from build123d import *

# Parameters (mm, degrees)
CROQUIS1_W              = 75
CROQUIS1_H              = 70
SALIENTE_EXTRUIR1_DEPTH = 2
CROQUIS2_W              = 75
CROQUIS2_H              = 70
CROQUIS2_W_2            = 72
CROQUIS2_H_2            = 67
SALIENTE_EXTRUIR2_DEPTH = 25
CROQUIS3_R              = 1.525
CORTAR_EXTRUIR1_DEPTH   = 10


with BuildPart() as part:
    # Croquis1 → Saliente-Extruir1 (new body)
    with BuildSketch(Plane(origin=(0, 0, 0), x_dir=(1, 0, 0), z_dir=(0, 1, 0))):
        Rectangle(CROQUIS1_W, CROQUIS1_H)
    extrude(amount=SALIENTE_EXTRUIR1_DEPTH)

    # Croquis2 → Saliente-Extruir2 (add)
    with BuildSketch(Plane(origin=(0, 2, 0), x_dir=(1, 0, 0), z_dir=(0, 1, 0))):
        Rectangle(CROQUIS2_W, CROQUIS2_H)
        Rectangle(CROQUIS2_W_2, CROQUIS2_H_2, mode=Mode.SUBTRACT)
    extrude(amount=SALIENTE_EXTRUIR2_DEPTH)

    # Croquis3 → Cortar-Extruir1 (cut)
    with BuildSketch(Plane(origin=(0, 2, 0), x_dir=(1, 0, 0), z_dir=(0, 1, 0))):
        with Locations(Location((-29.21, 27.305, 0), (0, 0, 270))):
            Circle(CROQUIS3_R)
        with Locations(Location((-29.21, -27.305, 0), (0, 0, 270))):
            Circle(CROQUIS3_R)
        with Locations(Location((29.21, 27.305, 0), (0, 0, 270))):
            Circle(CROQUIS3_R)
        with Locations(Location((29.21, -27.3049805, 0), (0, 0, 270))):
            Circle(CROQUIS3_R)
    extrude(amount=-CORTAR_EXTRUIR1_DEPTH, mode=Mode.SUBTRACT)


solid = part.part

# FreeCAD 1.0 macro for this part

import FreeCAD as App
import Part
import Sketcher

V = App.Vector
Q = App.Units.Quantity


def add_polygon(sketch, points):
    """Adds a closed chain of lines whose ends are joined by coincident constraints."""
    first, n = sketch.GeometryCount, len(points)
    for a, b in zip(points, points[1:] + points[:1]):
        sketch.addGeometry(Part.LineSegment(App.Vector(*a, 0), App.Vector(*b, 0)), False)
    for i in range(n):
        sketch.addConstraint(Sketcher.Constraint("Coincident", first + i, 2, first + (i + 1) % n, 1))

doc = App.newDocument("Part")
body = doc.addObject("PartDesign::Body", "Body")

sketch1 = body.newObject("Sketcher::SketchObject", "Sketch")
sketch1.AttachmentSupport = (doc.getObject("XZ_Plane"), [""])
sketch1.MapMode = "FlatFace"
add_polygon(sketch1, [(-38, -35), (-38, 35), (38, 35), (38, -35)])
sketch1.addConstraint([
    Sketcher.Constraint("Vertical", 0),
    Sketcher.Constraint("Horizontal", 1),
    Sketcher.Constraint("Vertical", 2),
    Sketcher.Constraint("Horizontal", 3),
    Sketcher.Constraint("Symmetric", 0, 2, 2, 2, -1, 1),
    Sketcher.Constraint("DistanceX", 1, 1, 1, 2, Q("75 mm")),
    Sketcher.Constraint("DistanceY", 0, 1, 0, 2, Q("70 mm")),
])
pad1 = body.newObject("PartDesign::Pad", "Pad")
pad1.Profile = sketch1
pad1.Length = 2
pad1.Reversed = True

sketch2 = body.newObject("Sketcher::SketchObject", "Sketch001")
sketch2.AttachmentSupport = (doc.getObject("XZ_Plane"), [""])
sketch2.MapMode = "FlatFace"
sketch2.AttachmentOffset = App.Placement(V(0, 0, -2), App.Rotation())
add_polygon(sketch2, [(-38, -35), (-38, 35), (38, 35), (38, -35)])
add_polygon(sketch2, [(36, 34), (-36, 34), (-36, -34), (36, -34)])
sketch2.addConstraint([
    Sketcher.Constraint("Vertical", 0),
    Sketcher.Constraint("Horizontal", 1),
    Sketcher.Constraint("Vertical", 2),
    Sketcher.Constraint("Horizontal", 3),
    Sketcher.Constraint("Horizontal", 4),
    Sketcher.Constraint("Vertical", 5),
    Sketcher.Constraint("Horizontal", 6),
    Sketcher.Constraint("Vertical", 7),
    Sketcher.Constraint("Symmetric", 0, 2, 2, 2, -1, 1),
    Sketcher.Constraint("Symmetric", 4, 2, 6, 2, -1, 1),
    Sketcher.Constraint("DistanceX", 1, 1, 1, 2, Q("75 mm")),
    Sketcher.Constraint("DistanceX", 4, 2, 4, 1, Q("72 mm")),
    Sketcher.Constraint("DistanceY", 0, 1, 0, 2, Q("70 mm")),
    Sketcher.Constraint("DistanceY", 5, 2, 5, 1, Q("67 mm")),
])
pad2 = body.newObject("PartDesign::Pad", "Pad001")
pad2.Profile = sketch2
pad2.Length = 25
pad2.Reversed = True

sketch3 = body.newObject("Sketcher::SketchObject", "Sketch002")
sketch3.AttachmentSupport = (doc.getObject("XZ_Plane"), [""])
sketch3.MapMode = "FlatFace"
sketch3.AttachmentOffset = App.Placement(V(0, 0, -2), App.Rotation())
sketch3.addGeometry([
    Part.Circle(V(-29.2, -27.3, 0), V(0, 0, 1), 1.5),
    Part.Circle(V(-29.2, 27.3, 0), V(0, 0, 1), 1.5),
    Part.Circle(V(29.2, -27.3, 0), V(0, 0, 1), 1.5),
    Part.Circle(V(29.2, 27.3, 0), V(0, 0, 1), 1.5),
], False)
sketch3.addConstraint([
    Sketcher.Constraint("Equal", 0, 1),
    Sketcher.Constraint("Equal", 1, 2),
    Sketcher.Constraint("Equal", 2, 3),
    Sketcher.Constraint("Symmetric", 1, 3, 2, 3, -1, 1),
    Sketcher.Constraint("Symmetric", 0, 3, 2, 3, -2),
    Sketcher.Constraint("Vertical", 2, 3, 3, 3),
    Sketcher.Constraint("Diameter", 0, Q("3.05 mm")),
    Sketcher.Constraint("DistanceX", 0, 3, -1, 1, Q("29.21 mm")),
    Sketcher.Constraint("DistanceY", 0, 3, 1, 3, Q("54.61 mm")),
    Sketcher.Constraint("DistanceY", -1, 1, 3, 3, Q("27.30498 mm")),
])
pocket1 = body.newObject("PartDesign::Pocket", "Pocket")
pocket1.Profile = sketch3
pocket1.Length = 10
pocket1.Reversed = True

doc.recompute()
